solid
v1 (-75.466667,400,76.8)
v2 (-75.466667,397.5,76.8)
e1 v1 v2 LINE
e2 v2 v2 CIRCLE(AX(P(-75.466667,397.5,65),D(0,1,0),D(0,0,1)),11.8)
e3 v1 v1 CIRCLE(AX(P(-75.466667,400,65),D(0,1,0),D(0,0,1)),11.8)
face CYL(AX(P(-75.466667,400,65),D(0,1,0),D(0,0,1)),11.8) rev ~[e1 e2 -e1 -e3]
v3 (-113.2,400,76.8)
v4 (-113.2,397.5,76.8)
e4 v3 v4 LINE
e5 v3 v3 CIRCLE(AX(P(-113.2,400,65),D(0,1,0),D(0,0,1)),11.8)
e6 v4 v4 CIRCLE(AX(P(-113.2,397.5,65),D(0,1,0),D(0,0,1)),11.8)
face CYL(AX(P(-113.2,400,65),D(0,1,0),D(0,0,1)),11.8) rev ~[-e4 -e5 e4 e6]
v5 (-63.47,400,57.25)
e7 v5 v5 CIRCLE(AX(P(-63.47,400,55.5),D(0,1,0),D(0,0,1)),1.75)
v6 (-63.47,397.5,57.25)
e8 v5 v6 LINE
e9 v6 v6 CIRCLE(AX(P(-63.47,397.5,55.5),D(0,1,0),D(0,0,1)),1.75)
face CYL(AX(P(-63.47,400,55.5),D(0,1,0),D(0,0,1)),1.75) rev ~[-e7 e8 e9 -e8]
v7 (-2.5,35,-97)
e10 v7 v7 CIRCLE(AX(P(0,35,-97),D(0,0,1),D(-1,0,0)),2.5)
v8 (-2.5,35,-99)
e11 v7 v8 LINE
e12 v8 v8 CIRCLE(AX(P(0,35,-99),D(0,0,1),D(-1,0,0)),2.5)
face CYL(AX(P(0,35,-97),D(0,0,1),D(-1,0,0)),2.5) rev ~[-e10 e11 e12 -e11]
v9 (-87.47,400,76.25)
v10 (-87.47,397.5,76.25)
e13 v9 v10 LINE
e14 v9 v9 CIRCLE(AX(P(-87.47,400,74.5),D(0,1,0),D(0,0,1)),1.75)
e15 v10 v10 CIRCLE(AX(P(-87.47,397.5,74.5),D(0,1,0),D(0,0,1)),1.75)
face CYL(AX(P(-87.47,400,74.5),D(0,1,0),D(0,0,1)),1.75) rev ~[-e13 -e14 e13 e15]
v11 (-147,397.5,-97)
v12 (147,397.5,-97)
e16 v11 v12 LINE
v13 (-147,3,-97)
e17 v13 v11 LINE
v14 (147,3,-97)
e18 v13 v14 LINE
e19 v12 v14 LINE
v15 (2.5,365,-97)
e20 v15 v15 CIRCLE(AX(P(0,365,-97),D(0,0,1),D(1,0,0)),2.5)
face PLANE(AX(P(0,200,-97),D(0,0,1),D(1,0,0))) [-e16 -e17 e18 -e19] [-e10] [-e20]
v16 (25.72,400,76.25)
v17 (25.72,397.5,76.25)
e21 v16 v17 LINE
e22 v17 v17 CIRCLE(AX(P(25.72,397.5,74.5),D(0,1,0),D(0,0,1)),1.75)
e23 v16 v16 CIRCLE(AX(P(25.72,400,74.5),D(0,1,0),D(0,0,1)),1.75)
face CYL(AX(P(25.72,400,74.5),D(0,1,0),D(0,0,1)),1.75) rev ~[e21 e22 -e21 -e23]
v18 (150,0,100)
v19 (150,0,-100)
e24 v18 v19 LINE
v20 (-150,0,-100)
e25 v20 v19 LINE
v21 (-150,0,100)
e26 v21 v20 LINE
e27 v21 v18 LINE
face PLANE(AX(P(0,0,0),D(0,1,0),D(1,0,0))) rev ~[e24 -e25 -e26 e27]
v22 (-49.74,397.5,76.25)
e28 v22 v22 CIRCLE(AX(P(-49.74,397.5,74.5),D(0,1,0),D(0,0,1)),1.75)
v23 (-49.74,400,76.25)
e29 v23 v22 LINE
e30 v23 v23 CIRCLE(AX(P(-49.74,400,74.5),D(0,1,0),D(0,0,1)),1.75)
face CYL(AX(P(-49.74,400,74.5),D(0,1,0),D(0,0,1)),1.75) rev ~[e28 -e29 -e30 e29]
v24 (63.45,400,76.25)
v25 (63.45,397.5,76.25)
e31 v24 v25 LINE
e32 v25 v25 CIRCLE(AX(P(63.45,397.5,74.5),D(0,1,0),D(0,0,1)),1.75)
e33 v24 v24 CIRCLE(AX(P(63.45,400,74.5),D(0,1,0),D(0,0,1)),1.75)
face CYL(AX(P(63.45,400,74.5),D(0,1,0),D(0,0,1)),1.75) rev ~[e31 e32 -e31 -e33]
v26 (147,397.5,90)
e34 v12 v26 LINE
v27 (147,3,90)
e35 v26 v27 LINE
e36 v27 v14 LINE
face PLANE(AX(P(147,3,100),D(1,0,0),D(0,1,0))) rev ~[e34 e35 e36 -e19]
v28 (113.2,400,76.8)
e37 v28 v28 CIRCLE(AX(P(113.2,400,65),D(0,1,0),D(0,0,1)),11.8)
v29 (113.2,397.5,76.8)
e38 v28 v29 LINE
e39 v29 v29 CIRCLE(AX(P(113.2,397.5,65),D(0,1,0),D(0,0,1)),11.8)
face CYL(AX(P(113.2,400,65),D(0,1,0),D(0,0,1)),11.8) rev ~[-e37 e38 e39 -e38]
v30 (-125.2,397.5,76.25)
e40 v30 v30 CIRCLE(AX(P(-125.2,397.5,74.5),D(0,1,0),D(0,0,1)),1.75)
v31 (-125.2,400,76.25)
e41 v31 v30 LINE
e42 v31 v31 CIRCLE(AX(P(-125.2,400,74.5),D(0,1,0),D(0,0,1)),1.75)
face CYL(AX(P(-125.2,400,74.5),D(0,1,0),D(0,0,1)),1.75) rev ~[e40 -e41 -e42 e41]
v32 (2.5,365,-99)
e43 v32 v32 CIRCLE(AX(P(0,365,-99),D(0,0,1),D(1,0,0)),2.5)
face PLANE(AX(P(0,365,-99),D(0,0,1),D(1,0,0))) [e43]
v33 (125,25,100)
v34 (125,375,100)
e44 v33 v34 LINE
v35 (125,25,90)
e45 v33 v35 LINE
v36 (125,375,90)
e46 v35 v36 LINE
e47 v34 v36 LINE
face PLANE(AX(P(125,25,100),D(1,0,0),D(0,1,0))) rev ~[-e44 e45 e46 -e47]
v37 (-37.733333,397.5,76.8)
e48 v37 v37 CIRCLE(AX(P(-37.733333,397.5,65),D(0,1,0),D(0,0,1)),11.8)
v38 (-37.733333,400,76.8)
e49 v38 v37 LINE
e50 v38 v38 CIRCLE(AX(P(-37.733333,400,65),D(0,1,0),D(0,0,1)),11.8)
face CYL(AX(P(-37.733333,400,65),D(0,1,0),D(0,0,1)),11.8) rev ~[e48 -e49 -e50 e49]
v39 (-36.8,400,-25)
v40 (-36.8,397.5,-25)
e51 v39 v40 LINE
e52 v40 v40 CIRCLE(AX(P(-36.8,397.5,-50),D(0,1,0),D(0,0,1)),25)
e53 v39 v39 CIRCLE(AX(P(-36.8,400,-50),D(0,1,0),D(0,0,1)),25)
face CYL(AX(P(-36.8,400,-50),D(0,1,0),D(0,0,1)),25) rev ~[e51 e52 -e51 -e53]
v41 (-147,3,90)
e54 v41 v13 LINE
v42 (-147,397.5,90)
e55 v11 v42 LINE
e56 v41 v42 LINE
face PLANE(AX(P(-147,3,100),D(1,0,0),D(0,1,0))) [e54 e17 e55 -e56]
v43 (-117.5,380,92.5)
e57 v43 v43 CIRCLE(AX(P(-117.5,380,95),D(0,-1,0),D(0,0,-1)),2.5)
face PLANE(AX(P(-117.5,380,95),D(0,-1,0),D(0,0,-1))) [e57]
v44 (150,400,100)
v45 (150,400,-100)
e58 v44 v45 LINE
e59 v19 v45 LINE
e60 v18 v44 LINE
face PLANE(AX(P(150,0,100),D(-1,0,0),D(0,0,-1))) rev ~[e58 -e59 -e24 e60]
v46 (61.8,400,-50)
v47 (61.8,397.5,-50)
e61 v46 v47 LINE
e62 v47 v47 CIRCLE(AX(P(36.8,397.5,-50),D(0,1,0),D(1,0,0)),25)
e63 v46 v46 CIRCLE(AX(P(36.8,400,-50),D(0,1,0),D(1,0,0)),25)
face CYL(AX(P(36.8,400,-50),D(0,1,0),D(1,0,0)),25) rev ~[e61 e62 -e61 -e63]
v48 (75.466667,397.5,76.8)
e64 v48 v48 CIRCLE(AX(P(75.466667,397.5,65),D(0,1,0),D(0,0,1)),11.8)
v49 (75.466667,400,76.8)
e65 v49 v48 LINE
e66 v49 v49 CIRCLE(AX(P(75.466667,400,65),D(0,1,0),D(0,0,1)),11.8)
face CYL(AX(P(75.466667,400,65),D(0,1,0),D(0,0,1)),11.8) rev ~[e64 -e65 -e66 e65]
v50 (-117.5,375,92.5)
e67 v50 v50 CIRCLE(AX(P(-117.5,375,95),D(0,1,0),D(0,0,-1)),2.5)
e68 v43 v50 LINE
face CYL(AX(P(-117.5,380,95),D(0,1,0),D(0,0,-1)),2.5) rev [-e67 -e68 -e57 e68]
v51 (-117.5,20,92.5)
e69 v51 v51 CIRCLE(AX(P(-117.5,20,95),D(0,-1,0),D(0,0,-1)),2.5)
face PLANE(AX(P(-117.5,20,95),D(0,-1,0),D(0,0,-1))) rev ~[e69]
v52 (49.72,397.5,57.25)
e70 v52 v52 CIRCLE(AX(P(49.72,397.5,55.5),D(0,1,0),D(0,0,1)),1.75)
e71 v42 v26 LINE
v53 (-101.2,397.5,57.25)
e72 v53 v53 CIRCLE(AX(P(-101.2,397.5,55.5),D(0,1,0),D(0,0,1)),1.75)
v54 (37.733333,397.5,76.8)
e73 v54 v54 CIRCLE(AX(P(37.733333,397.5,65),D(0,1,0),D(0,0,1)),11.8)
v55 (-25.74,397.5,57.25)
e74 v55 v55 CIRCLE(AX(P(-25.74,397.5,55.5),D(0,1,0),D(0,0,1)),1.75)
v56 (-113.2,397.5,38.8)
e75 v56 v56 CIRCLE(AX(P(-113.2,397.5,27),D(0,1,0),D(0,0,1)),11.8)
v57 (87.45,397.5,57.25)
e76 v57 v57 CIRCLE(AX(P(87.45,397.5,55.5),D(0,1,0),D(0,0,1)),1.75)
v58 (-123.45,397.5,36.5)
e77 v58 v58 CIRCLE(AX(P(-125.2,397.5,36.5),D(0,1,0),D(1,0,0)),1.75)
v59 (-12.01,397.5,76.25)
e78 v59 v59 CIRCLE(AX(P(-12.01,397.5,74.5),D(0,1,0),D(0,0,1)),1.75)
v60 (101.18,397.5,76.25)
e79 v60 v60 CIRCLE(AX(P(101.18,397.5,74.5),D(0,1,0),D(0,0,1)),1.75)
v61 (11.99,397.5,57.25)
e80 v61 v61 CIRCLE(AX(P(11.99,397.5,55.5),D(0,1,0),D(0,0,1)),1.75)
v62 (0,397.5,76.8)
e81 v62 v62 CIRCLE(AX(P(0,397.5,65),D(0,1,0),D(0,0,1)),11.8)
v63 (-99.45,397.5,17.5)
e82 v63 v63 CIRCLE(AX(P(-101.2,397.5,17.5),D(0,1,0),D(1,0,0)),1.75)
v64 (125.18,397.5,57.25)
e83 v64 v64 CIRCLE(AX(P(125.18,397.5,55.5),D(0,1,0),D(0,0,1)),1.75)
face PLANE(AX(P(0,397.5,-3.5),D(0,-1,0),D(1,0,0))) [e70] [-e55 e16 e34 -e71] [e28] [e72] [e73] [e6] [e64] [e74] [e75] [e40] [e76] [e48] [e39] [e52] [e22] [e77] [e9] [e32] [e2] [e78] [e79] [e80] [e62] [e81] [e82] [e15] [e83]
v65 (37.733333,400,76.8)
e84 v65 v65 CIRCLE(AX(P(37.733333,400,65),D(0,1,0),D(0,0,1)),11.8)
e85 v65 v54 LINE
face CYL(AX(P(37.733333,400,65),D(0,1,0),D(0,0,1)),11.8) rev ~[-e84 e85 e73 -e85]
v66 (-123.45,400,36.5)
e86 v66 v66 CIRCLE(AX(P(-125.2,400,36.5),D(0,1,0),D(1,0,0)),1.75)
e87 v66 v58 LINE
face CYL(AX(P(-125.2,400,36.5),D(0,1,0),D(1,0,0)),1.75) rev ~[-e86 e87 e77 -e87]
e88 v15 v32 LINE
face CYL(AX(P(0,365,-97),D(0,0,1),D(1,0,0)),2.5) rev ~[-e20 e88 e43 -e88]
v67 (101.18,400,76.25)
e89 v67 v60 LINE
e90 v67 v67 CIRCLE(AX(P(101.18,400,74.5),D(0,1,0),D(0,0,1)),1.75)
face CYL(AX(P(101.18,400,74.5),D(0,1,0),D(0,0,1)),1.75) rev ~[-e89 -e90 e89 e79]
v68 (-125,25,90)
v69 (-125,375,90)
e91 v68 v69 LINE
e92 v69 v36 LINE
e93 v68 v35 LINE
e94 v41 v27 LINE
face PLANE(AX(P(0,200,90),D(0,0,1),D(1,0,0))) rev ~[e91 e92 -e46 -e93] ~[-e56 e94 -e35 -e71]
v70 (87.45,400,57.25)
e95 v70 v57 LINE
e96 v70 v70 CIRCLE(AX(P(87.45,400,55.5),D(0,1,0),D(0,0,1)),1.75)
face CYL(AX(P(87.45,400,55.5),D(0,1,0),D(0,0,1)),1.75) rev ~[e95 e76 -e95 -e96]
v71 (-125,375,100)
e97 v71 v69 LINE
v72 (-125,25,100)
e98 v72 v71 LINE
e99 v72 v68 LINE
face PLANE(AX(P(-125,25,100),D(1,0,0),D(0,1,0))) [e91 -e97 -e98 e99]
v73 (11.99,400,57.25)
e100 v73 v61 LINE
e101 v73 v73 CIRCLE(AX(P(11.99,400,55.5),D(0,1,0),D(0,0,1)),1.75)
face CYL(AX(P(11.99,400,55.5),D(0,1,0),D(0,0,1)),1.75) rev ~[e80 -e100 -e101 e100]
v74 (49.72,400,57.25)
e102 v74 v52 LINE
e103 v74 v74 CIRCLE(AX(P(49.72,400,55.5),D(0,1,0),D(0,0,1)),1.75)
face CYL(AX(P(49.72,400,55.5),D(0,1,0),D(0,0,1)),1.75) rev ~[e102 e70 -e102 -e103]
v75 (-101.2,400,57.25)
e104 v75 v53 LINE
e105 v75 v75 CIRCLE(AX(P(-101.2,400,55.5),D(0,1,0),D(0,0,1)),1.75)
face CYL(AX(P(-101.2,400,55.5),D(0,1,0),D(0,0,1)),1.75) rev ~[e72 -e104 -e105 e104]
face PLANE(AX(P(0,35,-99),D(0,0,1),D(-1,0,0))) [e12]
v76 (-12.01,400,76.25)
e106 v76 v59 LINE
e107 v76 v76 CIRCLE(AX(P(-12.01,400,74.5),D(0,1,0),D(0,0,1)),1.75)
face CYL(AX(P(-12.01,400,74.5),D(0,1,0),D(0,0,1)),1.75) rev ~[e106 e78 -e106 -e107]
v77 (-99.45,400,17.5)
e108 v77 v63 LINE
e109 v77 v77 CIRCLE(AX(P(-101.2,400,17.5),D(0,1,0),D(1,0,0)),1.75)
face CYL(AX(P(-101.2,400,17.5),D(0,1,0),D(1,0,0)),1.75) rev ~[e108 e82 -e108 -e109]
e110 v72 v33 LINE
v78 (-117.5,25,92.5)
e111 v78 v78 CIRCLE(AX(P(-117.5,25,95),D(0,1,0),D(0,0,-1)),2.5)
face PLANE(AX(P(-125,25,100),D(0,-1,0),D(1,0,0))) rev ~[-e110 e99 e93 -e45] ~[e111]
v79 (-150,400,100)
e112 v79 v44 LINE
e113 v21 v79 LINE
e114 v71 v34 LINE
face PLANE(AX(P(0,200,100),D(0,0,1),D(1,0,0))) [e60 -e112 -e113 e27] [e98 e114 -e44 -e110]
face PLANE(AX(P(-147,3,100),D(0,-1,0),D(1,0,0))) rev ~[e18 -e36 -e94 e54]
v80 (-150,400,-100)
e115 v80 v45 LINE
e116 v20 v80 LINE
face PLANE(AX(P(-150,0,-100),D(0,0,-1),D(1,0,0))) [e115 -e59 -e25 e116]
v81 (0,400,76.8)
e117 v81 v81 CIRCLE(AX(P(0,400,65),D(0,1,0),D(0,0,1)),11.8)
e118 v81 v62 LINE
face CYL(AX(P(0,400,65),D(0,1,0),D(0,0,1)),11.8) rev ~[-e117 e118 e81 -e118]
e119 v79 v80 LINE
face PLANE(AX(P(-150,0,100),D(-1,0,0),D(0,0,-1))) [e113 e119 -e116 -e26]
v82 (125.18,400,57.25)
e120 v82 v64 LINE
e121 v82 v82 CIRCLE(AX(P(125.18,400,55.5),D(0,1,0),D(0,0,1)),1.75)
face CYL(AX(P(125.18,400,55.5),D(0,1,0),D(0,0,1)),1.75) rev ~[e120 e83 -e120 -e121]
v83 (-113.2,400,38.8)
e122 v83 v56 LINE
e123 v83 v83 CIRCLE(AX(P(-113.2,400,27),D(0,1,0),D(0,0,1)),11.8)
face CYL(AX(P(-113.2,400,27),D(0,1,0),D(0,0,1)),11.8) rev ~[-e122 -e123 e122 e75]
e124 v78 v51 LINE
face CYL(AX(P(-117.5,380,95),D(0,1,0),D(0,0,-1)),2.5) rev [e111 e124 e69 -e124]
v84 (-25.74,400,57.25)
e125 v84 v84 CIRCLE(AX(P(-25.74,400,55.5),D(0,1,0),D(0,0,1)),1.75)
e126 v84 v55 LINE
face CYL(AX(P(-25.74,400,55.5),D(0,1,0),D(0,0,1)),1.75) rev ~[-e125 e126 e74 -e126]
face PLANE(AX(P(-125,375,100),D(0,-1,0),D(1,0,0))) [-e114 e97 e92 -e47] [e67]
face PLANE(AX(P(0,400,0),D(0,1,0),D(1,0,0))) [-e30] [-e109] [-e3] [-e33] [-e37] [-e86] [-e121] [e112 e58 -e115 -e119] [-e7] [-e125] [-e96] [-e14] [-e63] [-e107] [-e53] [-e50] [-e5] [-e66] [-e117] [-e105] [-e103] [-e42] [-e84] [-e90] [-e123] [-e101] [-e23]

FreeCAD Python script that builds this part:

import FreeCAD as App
import Part
import Sketcher
from FreeCAD import Vector
Q = App.Units.Quantity

doc = App.newDocument("Part")
body = doc.addObject("PartDesign::Body", "Body")

sketch1 = body.newObject("Sketcher::SketchObject", "Sketch")
sketch1.AttachmentSupport = (doc.getObject("XZ_Plane"), [""])
sketch1.MapMode = "FlatFace"
sketch1.addGeometry([
    Part.LineSegment(Vector(-150, -100, 0), Vector(-150, 100, 0)),
    Part.LineSegment(Vector(-150, 100, 0), Vector(150, 100, 0)),
    Part.LineSegment(Vector(150, 100, 0), Vector(150, -100, 0)),
    Part.LineSegment(Vector(150, -100, 0), Vector(-150, -100, 0)),
], False)
sketch1.addConstraint([
    Sketcher.Constraint("Coincident", 0, 2, 1, 1),
    Sketcher.Constraint("Coincident", 1, 2, 2, 1),
    Sketcher.Constraint("Coincident", 2, 2, 3, 1),
    Sketcher.Constraint("Coincident", 3, 2, 0, 1),
    Sketcher.Constraint("Vertical", 0),
    Sketcher.Constraint("Horizontal", 1),
    Sketcher.Constraint("Vertical", 2),
    Sketcher.Constraint("Horizontal", 3),
    Sketcher.Constraint("Symmetric", 0, 2, 2, 2, -1, 1),
    Sketcher.Constraint("DistanceX", 1, 1, 1, 2, Q("300 mm")),
    Sketcher.Constraint("DistanceY", 0, 1, 0, 2, Q("200 mm")),
])
pad1 = body.newObject("PartDesign::Pad", "Pad")
pad1.Profile = sketch1
pad1.Length = 400
pad1.Reversed = True

sketch2 = body.newObject("Sketcher::SketchObject", "Sketch001")
sketch2.AttachmentSupport = (doc.getObject("XY_Plane"), [""])
sketch2.MapMode = "FlatFace"
sketch2.AttachmentOffset = App.Placement(Vector(0, 0, 100), App.Rotation())
sketch2.addGeometry([
    Part.LineSegment(Vector(-147, 397, 0), Vector(-147, 3, 0)),
    Part.LineSegment(Vector(-147, 3, 0), Vector(147, 3, 0)),
    Part.LineSegment(Vector(147, 3, 0), Vector(147, 397, 0)),
    Part.LineSegment(Vector(147, 397, 0), Vector(-147, 397, 0)),
], False)
sketch2.addConstraint([
    Sketcher.Constraint("Coincident", 0, 2, 1, 1),
    Sketcher.Constraint("Coincident", 1, 2, 2, 1),
    Sketcher.Constraint("Coincident", 2, 2, 3, 1),
    Sketcher.Constraint("Coincident", 3, 2, 0, 1),
    Sketcher.Constraint("Vertical", 0),
    Sketcher.Constraint("Horizontal", 1),
    Sketcher.Constraint("Vertical", 2),
    Sketcher.Constraint("Horizontal", 3),
    Sketcher.Constraint("DistanceX", 1, 1, 1, 2, Q("294 mm")),
    Sketcher.Constraint("DistanceY", 0, 2, 0, 1, Q("394 mm")),
    Sketcher.Constraint("DistanceX", 0, 2, -1, 1, Q("147 mm")),
    Sketcher.Constraint("DistanceY", -1, 1, 0, 2, Q("3 mm")),
])
pocket1 = body.newObject("PartDesign::Pocket", "Pocket")
pocket1.Profile = sketch2
pocket1.Length = 197

sketch3 = body.newObject("Sketcher::SketchObject", "Sketch002")
sketch3.AttachmentSupport = (doc.getObject("XY_Plane"), [""])
sketch3.MapMode = "FlatFace"
sketch3.AttachmentOffset = App.Placement(Vector(0, 0, 100), App.Rotation())
sketch3.addGeometry([
    Part.LineSegment(Vector(-147, 397, 0), Vector(-147, 3, 0)),
    Part.LineSegment(Vector(-147, 3, 0), Vector(147, 3, 0)),
    Part.LineSegment(Vector(147, 3, 0), Vector(147, 397, 0)),
    Part.LineSegment(Vector(147, 397, 0), Vector(-147, 397, 0)),
    Part.LineSegment(Vector(125, 25, 0), Vector(-125, 25, 0)),
    Part.LineSegment(Vector(-125, 25, 0), Vector(-125, 375, 0)),
    Part.LineSegment(Vector(-125, 375, 0), Vector(125, 375, 0)),
    Part.LineSegment(Vector(125, 375, 0), Vector(125, 25, 0)),
], False)
sketch3.addConstraint([
    Sketcher.Constraint("Coincident", 0, 2, 1, 1),
    Sketcher.Constraint("Coincident", 1, 2, 2, 1),
    Sketcher.Constraint("Coincident", 2, 2, 3, 1),
    Sketcher.Constraint("Coincident", 3, 2, 0, 1),
    Sketcher.Constraint("Coincident", 4, 2, 5, 1),
    Sketcher.Constraint("Coincident", 5, 2, 6, 1),
    Sketcher.Constraint("Coincident", 6, 2, 7, 1),
    Sketcher.Constraint("Coincident", 7, 2, 4, 1),
    Sketcher.Constraint("Vertical", 0),
    Sketcher.Constraint("Horizontal", 1),
    Sketcher.Constraint("Vertical", 2),
    Sketcher.Constraint("Horizontal", 3),
    Sketcher.Constraint("Horizontal", 4),
    Sketcher.Constraint("Vertical", 5),
    Sketcher.Constraint("Horizontal", 6),
    Sketcher.Constraint("Vertical", 7),
    Sketcher.Constraint("DistanceX", 1, 1, 1, 2, Q("294 mm")),
    Sketcher.Constraint("DistanceX", 4, 2, 4, 1, Q("250 mm")),
    Sketcher.Constraint("DistanceY", 0, 2, 0, 1, Q("394 mm")),
    Sketcher.Constraint("DistanceY", 5, 1, 5, 2, Q("350 mm")),
    Sketcher.Constraint("DistanceX", 0, 2, -1, 1, Q("147 mm")),
    Sketcher.Constraint("DistanceY", -1, 1, 0, 2, Q("3 mm")),
    Sketcher.Constraint("DistanceX", 4, 2, -1, 1, Q("125 mm")),
    Sketcher.Constraint("DistanceY", -1, 1, 4, 2, Q("25 mm")),
])
pad2 = body.newObject("PartDesign::Pad", "Pad001")
pad2.Profile = sketch3
pad2.Length = 10
pad2.Reversed = True

sketch4 = body.newObject("Sketcher::SketchObject", "Sketch003")
sketch4.AttachmentSupport = (doc.getObject("XY_Plane"), [""])
sketch4.MapMode = "FlatFace"
sketch4.AttachmentOffset = App.Placement(Vector(0, 0, -97), App.Rotation())
sketch4.addGeometry([
    Part.Circle(Vector(0, 365, 0), Vector(0, 0, 1), 2.5),
    Part.Circle(Vector(0, 35, 0), Vector(0, 0, 1), 2.5),
], False)
sketch4.addConstraint([
    Sketcher.Constraint("Equal", 0, 1),
    Sketcher.Constraint("PointOnObject", 0, 3, -2),
    Sketcher.Constraint("PointOnObject", 1, 3, -2),
    Sketcher.Constraint("Diameter", 0, Q("5 mm")),
    Sketcher.Constraint("DistanceY", -1, 1, 0, 3, Q("365 mm")),
    Sketcher.Constraint("DistanceY", -1, 1, 1, 3, Q("35 mm")),
])
pocket2 = body.newObject("PartDesign::Pocket", "Pocket001")
pocket2.Profile = sketch4
pocket2.Length = 2

sketch5 = body.newObject("Sketcher::SketchObject", "Sketch004")
sketch5.AttachmentSupport = (doc.getObject("XZ_Plane"), [""])
sketch5.MapMode = "FlatFace"
sketch5.AttachmentOffset = App.Placement(Vector(0, 0, -397), App.Rotation())
sketch5.addGeometry([
    Part.LineSegment(Vector(-147, 90, 0), Vector(-147, -97, 0)),
    Part.LineSegment(Vector(-147, -97, 0), Vector(147, -97, 0)),
    Part.LineSegment(Vector(147, -97, 0), Vector(147, 90, 0)),
    Part.LineSegment(Vector(147, 90, 0), Vector(-147, 90, 0)),
], False)
sketch5.addConstraint([
    Sketcher.Constraint("Coincident", 0, 2, 1, 1),
    Sketcher.Constraint("Coincident", 1, 2, 2, 1),
    Sketcher.Constraint("Coincident", 2, 2, 3, 1),
    Sketcher.Constraint("Coincident", 3, 2, 0, 1),
    Sketcher.Constraint("Vertical", 0),
    Sketcher.Constraint("Horizontal", 1),
    Sketcher.Constraint("Vertical", 2),
    Sketcher.Constraint("Horizontal", 3),
    Sketcher.Constraint("DistanceX", 1, 1, 1, 2, Q("294 mm")),
    Sketcher.Constraint("DistanceY", 0, 2, 0, 1, Q("187 mm")),
    Sketcher.Constraint("DistanceX", 0, 2, -1, 1, Q("147 mm")),
    Sketcher.Constraint("DistanceY", 0, 2, -1, 1, Q("97 mm")),
])
pocket3 = body.newObject("PartDesign::Pocket", "Pocket002")
pocket3.Profile = sketch5
pocket3.Length = 0.5

sketch6 = body.newObject("Sketcher::SketchObject", "Sketch005")
sketch6.AttachmentSupport = (doc.getObject("XZ_Plane"), [""])
sketch6.MapMode = "FlatFace"
sketch6.AttachmentOffset = App.Placement(Vector(0, 0, -400), App.Rotation())
sketch6.addGeometry(Part.Circle(Vector(-113, 65, 0), Vector(0, 0, 1), 12), False)
sketch6.addConstraint([
    Sketcher.Constraint("Diameter", 0, Q("23.6 mm")),
    Sketcher.Constraint("DistanceY", -1, 1, 0, 3, Q("65 mm")),
    Sketcher.Constraint("DistanceX", 0, 3, -1, 1, Q("113.2 mm")),
])
pocket4 = body.newObject("PartDesign::Pocket", "Pocket003")
pocket4.Profile = sketch6
pocket4.Type = "UpToFirst"
pocket4.Reversed = True

sketch7 = body.newObject("Sketcher::SketchObject", "Sketch006")
sketch7.AttachmentSupport = (doc.getObject("XZ_Plane"), [""])
sketch7.MapMode = "FlatFace"
sketch7.AttachmentOffset = App.Placement(Vector(0, 0, -400), App.Rotation())
sketch7.addGeometry(Part.Circle(Vector(-75, 65, 0), Vector(0, 0, 1), 12), False)
sketch7.addConstraint([
    Sketcher.Constraint("Diameter", 0, Q("23.6 mm")),
    Sketcher.Constraint("DistanceY", -1, 1, 0, 3, Q("65 mm")),
    Sketcher.Constraint("DistanceX", 0, 3, -1, 1, Q("75.466667 mm")),
])
pocket5 = body.newObject("PartDesign::Pocket", "Pocket004")
pocket5.Profile = sketch7
pocket5.Type = "UpToFirst"
pocket5.Reversed = True

sketch8 = body.newObject("Sketcher::SketchObject", "Sketch007")
sketch8.AttachmentSupport = (doc.getObject("XZ_Plane"), [""])
sketch8.MapMode = "FlatFace"
sketch8.AttachmentOffset = App.Placement(Vector(0, 0, -400), App.Rotation())
sketch8.addGeometry(Part.Circle(Vector(-38, 65, 0), Vector(0, 0, 1), 12), False)
sketch8.addConstraint([
    Sketcher.Constraint("Diameter", 0, Q("23.6 mm")),
    Sketcher.Constraint("DistanceY", -1, 1, 0, 3, Q("65 mm")),
    Sketcher.Constraint("DistanceX", 0, 3, -1, 1, Q("37.733333 mm")),
])
pocket6 = body.newObject("PartDesign::Pocket", "Pocket005")
pocket6.Profile = sketch8
pocket6.Type = "UpToFirst"
pocket6.Reversed = True

sketch9 = body.newObject("Sketcher::SketchObject", "Sketch008")
sketch9.AttachmentSupport = (doc.getObject("XZ_Plane"), [""])
sketch9.MapMode = "FlatFace"
sketch9.AttachmentOffset = App.Placement(Vector(0, 0, -400), App.Rotation())
sketch9.addGeometry(Part.Circle(Vector(0, 65, 0), Vector(0, 0, 1), 12), False)
sketch9.addConstraint([
    Sketcher.Constraint("PointOnObject", 0, 3, -2),
    Sketcher.Constraint("Diameter", 0, Q("23.6 mm")),
    Sketcher.Constraint("DistanceY", -1, 1, 0, 3, Q("65 mm")),
])
pocket7 = body.newObject("PartDesign::Pocket", "Pocket006")
pocket7.Profile = sketch9
pocket7.Type = "UpToFirst"
pocket7.Reversed = True

sketch10 = body.newObject("Sketcher::SketchObject", "Sketch009")
sketch10.AttachmentSupport = (doc.getObject("XZ_Plane"), [""])
sketch10.MapMode = "FlatFace"
sketch10.AttachmentOffset = App.Placement(Vector(0, 0, -400), App.Rotation())
sketch10.addGeometry(Part.Circle(Vector(38, 65, 0), Vector(0, 0, 1), 12), False)
sketch10.addConstraint([
    Sketcher.Constraint("Diameter", 0, Q("23.6 mm")),
    Sketcher.Constraint("DistanceY", -1, 1, 0, 3, Q("65 mm")),
    Sketcher.Constraint("DistanceX", -1, 1, 0, 3, Q("37.733333 mm")),
])
pocket8 = body.newObject("PartDesign::Pocket", "Pocket007")
pocket8.Profile = sketch10
pocket8.Type = "UpToFirst"
pocket8.Reversed = True

sketch11 = body.newObject("Sketcher::SketchObject", "Sketch010")
sketch11.AttachmentSupport = (doc.getObject("XZ_Plane"), [""])
sketch11.MapMode = "FlatFace"
sketch11.AttachmentOffset = App.Placement(Vector(0, 0, -400), App.Rotation())
sketch11.addGeometry(Part.Circle(Vector(75, 65, 0), Vector(0, 0, 1), 12), False)
sketch11.addConstraint([
    Sketcher.Constraint("Diameter", 0, Q("23.6 mm")),
    Sketcher.Constraint("DistanceY", -1, 1, 0, 3, Q("65 mm")),
    Sketcher.Constraint("DistanceX", -1, 1, 0, 3, Q("75.466667 mm")),
])
pocket9 = body.newObject("PartDesign::Pocket", "Pocket008")
pocket9.Profile = sketch11
pocket9.Type = "UpToFirst"
pocket9.Reversed = True

sketch12 = body.newObject("Sketcher::SketchObject", "Sketch011")
sketch12.AttachmentSupport = (doc.getObject("XZ_Plane"), [""])
sketch12.MapMode = "FlatFace"
sketch12.AttachmentOffset = App.Placement(Vector(0, 0, -400), App.Rotation())
sketch12.addGeometry(Part.Circle(Vector(113, 65, 0), Vector(0, 0, 1), 12), False)
sketch12.addConstraint([
    Sketcher.Constraint("Diameter", 0, Q("23.6 mm")),
    Sketcher.Constraint("DistanceY", -1, 1, 0, 3, Q("65 mm")),
    Sketcher.Constraint("DistanceX", -1, 1, 0, 3, Q("113.2 mm")),
])
pocket10 = body.newObject("PartDesign::Pocket", "Pocket009")
pocket10.Profile = sketch12
pocket10.Type = "UpToFirst"
pocket10.Reversed = True

sketch13 = body.newObject("Sketcher::SketchObject", "Sketch012")
sketch13.AttachmentSupport = (doc.getObject("XZ_Plane"), [""])
sketch13.MapMode = "FlatFace"
sketch13.AttachmentOffset = App.Placement(Vector(0, 0, -400), App.Rotation())
sketch13.addGeometry(Part.Circle(Vector(-113, 27, 0), Vector(0, 0, 1), 12), False)
sketch13.addConstraint([
    Sketcher.Constraint("Diameter", 0, Q("23.6 mm")),
    Sketcher.Constraint("DistanceY", -1, 1, 0, 3, Q("27 mm")),
    Sketcher.Constraint("DistanceX", 0, 3, -1, 1, Q("113.2 mm")),
])
pocket11 = body.newObject("PartDesign::Pocket", "Pocket010")
pocket11.Profile = sketch13
pocket11.Type = "UpToFirst"
pocket11.Reversed = True

sketch14 = body.newObject("Sketcher::SketchObject", "Sketch013")
sketch14.AttachmentSupport = (doc.getObject("XZ_Plane"), [""])
sketch14.MapMode = "FlatFace"
sketch14.AttachmentOffset = App.Placement(Vector(0, 0, -400), App.Rotation())
sketch14.addGeometry(Part.Circle(Vector(-37, -50, 0), Vector(0, 0, 1), 25), False)
sketch14.addConstraint([
    Sketcher.Constraint("Diameter", 0, Q("50 mm")),
    Sketcher.Constraint("DistanceY", 0, 3, -1, 1, Q("50 mm")),
    Sketcher.Constraint("DistanceX", 0, 3, -1, 1, Q("36.8 mm")),
])
pocket12 = body.newObject("PartDesign::Pocket", "Pocket011")
pocket12.Profile = sketch14
pocket12.Type = "UpToFirst"
pocket12.Reversed = True

sketch15 = body.newObject("Sketcher::SketchObject", "Sketch014")
sketch15.AttachmentSupport = (doc.getObject("XZ_Plane"), [""])
sketch15.MapMode = "FlatFace"
sketch15.AttachmentOffset = App.Placement(Vector(0, 0, -400), App.Rotation())
sketch15.addGeometry(Part.Circle(Vector(37, -50, 0), Vector(0, 0, 1), 25), False)
sketch15.addConstraint([
    Sketcher.Constraint("Diameter", 0, Q("50 mm")),
    Sketcher.Constraint("DistanceY", 0, 3, -1, 1, Q("50 mm")),
    Sketcher.Constraint("DistanceX", -1, 1, 0, 3, Q("36.8 mm")),
])
pocket13 = body.newObject("PartDesign::Pocket", "Pocket012")
pocket13.Profile = sketch15
pocket13.Type = "UpToFirst"
pocket13.Reversed = True

sketch16 = body.newObject("Sketcher::SketchObject", "Sketch015")
sketch16.AttachmentSupport = (doc.getObject("XZ_Plane"), [""])
sketch16.MapMode = "FlatFace"
sketch16.AttachmentOffset = App.Placement(Vector(0, 0, -400), App.Rotation())
sketch16.addGeometry(Part.Circle(Vector(-125.2, 74.5, 0), Vector(0, 0, 1), 1.8), False)
sketch16.addConstraint([
    Sketcher.Constraint("Diameter", 0, Q("3.5 mm")),
    Sketcher.Constraint("DistanceX", 0, 3, -1, 1, Q("125.2 mm")),
    Sketcher.Constraint("DistanceY", -1, 1, 0, 3, Q("74.5 mm")),
])
pocket14 = body.newObject("PartDesign::Pocket", "Pocket013")
pocket14.Profile = sketch16
pocket14.Type = "UpToFirst"
pocket14.Reversed = True

sketch17 = body.newObject("Sketcher::SketchObject", "Sketch016")
sketch17.AttachmentSupport = (doc.getObject("XZ_Plane"), [""])
sketch17.MapMode = "FlatFace"
sketch17.AttachmentOffset = App.Placement(Vector(0, 0, -400), App.Rotation())
sketch17.addGeometry(Part.Circle(Vector(-87.5, 74.5, 0), Vector(0, 0, 1), 1.8), False)
sketch17.addConstraint([
    Sketcher.Constraint("Diameter", 0, Q("3.5 mm")),
    Sketcher.Constraint("DistanceY", -1, 1, 0, 3, Q("74.5 mm")),
    Sketcher.Constraint("DistanceX", 0, 3, -1, 1, Q("87.47 mm")),
])
pocket15 = body.newObject("PartDesign::Pocket", "Pocket014")
pocket15.Profile = sketch17
pocket15.Type = "UpToFirst"
pocket15.Reversed = True

sketch18 = body.newObject("Sketcher::SketchObject", "Sketch017")
sketch18.AttachmentSupport = (doc.getObject("XZ_Plane"), [""])
sketch18.MapMode = "FlatFace"
sketch18.AttachmentOffset = App.Placement(Vector(0, 0, -400), App.Rotation())
sketch18.addGeometry(Part.Circle(Vector(-49.7, 74.5, 0), Vector(0, 0, 1), 1.8), False)
sketch18.addConstraint([
    Sketcher.Constraint("Diameter", 0, Q("3.5 mm")),
    Sketcher.Constraint("DistanceY", -1, 1, 0, 3, Q("74.5 mm")),
    Sketcher.Constraint("DistanceX", 0, 3, -1, 1, Q("49.74 mm")),
])
pocket16 = body.newObject("PartDesign::Pocket", "Pocket015")
pocket16.Profile = sketch18
pocket16.Type = "UpToFirst"
pocket16.Reversed = True

sketch19 = body.newObject("Sketcher::SketchObject", "Sketch018")
sketch19.AttachmentSupport = (doc.getObject("XZ_Plane"), [""])
sketch19.MapMode = "FlatFace"
sketch19.AttachmentOffset = App.Placement(Vector(0, 0, -400), App.Rotation())
sketch19.addGeometry(Part.Circle(Vector(-12, 74.5, 0), Vector(0, 0, 1), 1.8), False)
sketch19.addConstraint([
    Sketcher.Constraint("Diameter", 0, Q("3.5 mm")),
    Sketcher.Constraint("DistanceY", -1, 1, 0, 3, Q("74.5 mm")),
    Sketcher.Constraint("DistanceX", 0, 3, -1, 1, Q("12.01 mm")),
])
pocket17 = body.newObject("PartDesign::Pocket", "Pocket016")
pocket17.Profile = sketch19
pocket17.Type = "UpToFirst"
pocket17.Reversed = True

sketch20 = body.newObject("Sketcher::SketchObject", "Sketch019")
sketch20.AttachmentSupport = (doc.getObject("XZ_Plane"), [""])
sketch20.MapMode = "FlatFace"
sketch20.AttachmentOffset = App.Placement(Vector(0, 0, -400), App.Rotation())
sketch20.addGeometry(Part.Circle(Vector(25.7, 74.5, 0), Vector(0, 0, 1), 1.8), False)
sketch20.addConstraint([
    Sketcher.Constraint("Diameter", 0, Q("3.5 mm")),
    Sketcher.Constraint("DistanceY", -1, 1, 0, 3, Q("74.5 mm")),
    Sketcher.Constraint("DistanceX", -1, 1, 0, 3, Q("25.72 mm")),
])
pocket18 = body.newObject("PartDesign::Pocket", "Pocket017")
pocket18.Profile = sketch20
pocket18.Type = "UpToFirst"
pocket18.Reversed = True

sketch21 = body.newObject("Sketcher::SketchObject", "Sketch020")
sketch21.AttachmentSupport = (doc.getObject("XZ_Plane"), [""])
sketch21.MapMode = "FlatFace"
sketch21.AttachmentOffset = App.Placement(Vector(0, 0, -400), App.Rotation())
sketch21.addGeometry(Part.Circle(Vector(63.5, 74.5, 0), Vector(0, 0, 1), 1.8), False)
sketch21.addConstraint([
    Sketcher.Constraint("Diameter", 0, Q("3.5 mm")),
    Sketcher.Constraint("DistanceY", -1, 1, 0, 3, Q("74.5 mm")),
    Sketcher.Constraint("DistanceX", -1, 1, 0, 3, Q("63.45 mm")),
])
pocket19 = body.newObject("PartDesign::Pocket", "Pocket018")
pocket19.Profile = sketch21
pocket19.Type = "UpToFirst"
pocket19.Reversed = True

sketch22 = body.newObject("Sketcher::SketchObject", "Sketch021")
sketch22.AttachmentSupport = (doc.getObject("XZ_Plane"), [""])
sketch22.MapMode = "FlatFace"
sketch22.AttachmentOffset = App.Placement(Vector(0, 0, -400), App.Rotation())
sketch22.addGeometry(Part.Circle(Vector(101.2, 74.5, 0), Vector(0, 0, 1), 1.8), False)
sketch22.addConstraint([
    Sketcher.Constraint("Diameter", 0, Q("3.5 mm")),
    Sketcher.Constraint("DistanceY", -1, 1, 0, 3, Q("74.5 mm")),
    Sketcher.Constraint("DistanceX", -1, 1, 0, 3, Q("101.18 mm")),
])
pocket20 = body.newObject("PartDesign::Pocket", "Pocket019")
pocket20.Profile = sketch22
pocket20.Type = "UpToFirst"
pocket20.Reversed = True

sketch23 = body.newObject("Sketcher::SketchObject", "Sketch022")
sketch23.AttachmentSupport = (doc.getObject("XZ_Plane"), [""])
sketch23.MapMode = "FlatFace"
sketch23.AttachmentOffset = App.Placement(Vector(0, 0, -400), App.Rotation())
sketch23.addGeometry(Part.Circle(Vector(-101.2, 55.5, 0), Vector(0, 0, 1), 1.8), False)
sketch23.addConstraint([
    Sketcher.Constraint("Diameter", 0, Q("3.5 mm")),
    Sketcher.Constraint("DistanceX", 0, 3, -1, 1, Q("101.2 mm")),
    Sketcher.Constraint("DistanceY", -1, 1, 0, 3, Q("55.5 mm")),
])
pocket21 = body.newObject("PartDesign::Pocket", "Pocket020")
pocket21.Profile = sketch23
pocket21.Type = "UpToFirst"
pocket21.Reversed = True

sketch24 = body.newObject("Sketcher::SketchObject", "Sketch023")
sketch24.AttachmentSupport = (doc.getObject("XZ_Plane"), [""])
sketch24.MapMode = "FlatFace"
sketch24.AttachmentOffset = App.Placement(Vector(0, 0, -400), App.Rotation())
sketch24.addGeometry(Part.Circle(Vector(-63.5, 55.5, 0), Vector(0, 0, 1), 1.8), False)
sketch24.addConstraint([
    Sketcher.Constraint("Diameter", 0, Q("3.5 mm")),
    Sketcher.Constraint("DistanceY", -1, 1, 0, 3, Q("55.5 mm")),
    Sketcher.Constraint("DistanceX", 0, 3, -1, 1, Q("63.47 mm")),
])
pocket22 = body.newObject("PartDesign::Pocket", "Pocket021")
pocket22.Profile = sketch24
pocket22.Type = "UpToFirst"
pocket22.Reversed = True

sketch25 = body.newObject("Sketcher::SketchObject", "Sketch024")
sketch25.AttachmentSupport = (doc.getObject("XZ_Plane"), [""])
sketch25.MapMode = "FlatFace"
sketch25.AttachmentOffset = App.Placement(Vector(0, 0, -400), App.Rotation())
sketch25.addGeometry(Part.Circle(Vector(-25.7, 55.5, 0), Vector(0, 0, 1), 1.8), False)
sketch25.addConstraint([
    Sketcher.Constraint("Diameter", 0, Q("3.5 mm")),
    Sketcher.Constraint("DistanceY", -1, 1, 0, 3, Q("55.5 mm")),
    Sketcher.Constraint("DistanceX", 0, 3, -1, 1, Q("25.74 mm")),
])
pocket23 = body.newObject("PartDesign::Pocket", "Pocket022")
pocket23.Profile = sketch25
pocket23.Type = "UpToFirst"
pocket23.Reversed = True

sketch26 = body.newObject("Sketcher::SketchObject", "Sketch025")
sketch26.AttachmentSupport = (doc.getObject("XZ_Plane"), [""])
sketch26.MapMode = "FlatFace"
sketch26.AttachmentOffset = App.Placement(Vector(0, 0, -400), App.Rotation())
sketch26.addGeometry(Part.Circle(Vector(12, 55.5, 0), Vector(0, 0, 1), 1.8), False)
sketch26.addConstraint([
    Sketcher.Constraint("Diameter", 0, Q("3.5 mm")),
    Sketcher.Constraint("DistanceY", -1, 1, 0, 3, Q("55.5 mm")),
    Sketcher.Constraint("DistanceX", -1, 1, 0, 3, Q("11.99 mm")),
])
pocket24 = body.newObject("PartDesign::Pocket", "Pocket023")
pocket24.Profile = sketch26
pocket24.Type = "UpToFirst"
pocket24.Reversed = True

sketch27 = body.newObject("Sketcher::SketchObject", "Sketch026")
sketch27.AttachmentSupport = (doc.getObject("XZ_Plane"), [""])
sketch27.MapMode = "FlatFace"
sketch27.AttachmentOffset = App.Placement(Vector(0, 0, -400), App.Rotation())
sketch27.addGeometry(Part.Circle(Vector(49.7, 55.5, 0), Vector(0, 0, 1), 1.8), False)
sketch27.addConstraint([
    Sketcher.Constraint("Diameter", 0, Q("3.5 mm")),
    Sketcher.Constraint("DistanceY", -1, 1, 0, 3, Q("55.5 mm")),
    Sketcher.Constraint("DistanceX", -1, 1, 0, 3, Q("49.72 mm")),
])
pocket25 = body.newObject("PartDesign::Pocket", "Pocket024")
pocket25.Profile = sketch27
pocket25.Type = "UpToFirst"
pocket25.Reversed = True

sketch28 = body.newObject("Sketcher::SketchObject", "Sketch027")
sketch28.AttachmentSupport = (doc.getObject("XZ_Plane"), [""])
sketch28.MapMode = "FlatFace"
sketch28.AttachmentOffset = App.Placement(Vector(0, 0, -400), App.Rotation())
sketch28.addGeometry(Part.Circle(Vector(87.5, 55.5, 0), Vector(0, 0, 1), 1.8), False)
sketch28.addConstraint([
    Sketcher.Constraint("Diameter", 0, Q("3.5 mm")),
    Sketcher.Constraint("DistanceY", -1, 1, 0, 3, Q("55.5 mm")),
    Sketcher.Constraint("DistanceX", -1, 1, 0, 3, Q("87.45 mm")),
])
pocket26 = body.newObject("PartDesign::Pocket", "Pocket025")
pocket26.Profile = sketch28
pocket26.Type = "UpToFirst"
pocket26.Reversed = True

sketch29 = body.newObject("Sketcher::SketchObject", "Sketch028")
sketch29.AttachmentSupport = (doc.getObject("XZ_Plane"), [""])
sketch29.MapMode = "FlatFace"
sketch29.AttachmentOffset = App.Placement(Vector(0, 0, -400), App.Rotation())
sketch29.addGeometry(Part.Circle(Vector(125.2, 55.5, 0), Vector(0, 0, 1), 1.8), False)
sketch29.addConstraint([
    Sketcher.Constraint("Diameter", 0, Q("3.5 mm")),
    Sketcher.Constraint("DistanceY", -1, 1, 0, 3, Q("55.5 mm")),
    Sketcher.Constraint("DistanceX", -1, 1, 0, 3, Q("125.18 mm")),
])
pocket27 = body.newObject("PartDesign::Pocket", "Pocket026")
pocket27.Profile = sketch29
pocket27.Type = "UpToFirst"
pocket27.Reversed = True

sketch30 = body.newObject("Sketcher::SketchObject", "Sketch029")
sketch30.AttachmentSupport = (doc.getObject("XZ_Plane"), [""])
sketch30.MapMode = "FlatFace"
sketch30.AttachmentOffset = App.Placement(Vector(0, 0, -400), App.Rotation())
sketch30.addGeometry(Part.Circle(Vector(-125.2, 36.5, 0), Vector(0, 0, 1), 1.8), False)
sketch30.addConstraint([
    Sketcher.Constraint("Diameter", 0, Q("3.5 mm")),
    Sketcher.Constraint("DistanceX", 0, 3, -1, 1, Q("125.2 mm")),
    Sketcher.Constraint("DistanceY", -1, 1, 0, 3, Q("36.5 mm")),
])
pocket28 = body.newObject("PartDesign::Pocket", "Pocket027")
pocket28.Profile = sketch30
pocket28.Type = "UpToFirst"
pocket28.Reversed = True

sketch31 = body.newObject("Sketcher::SketchObject", "Sketch030")
sketch31.AttachmentSupport = (doc.getObject("XZ_Plane"), [""])
sketch31.MapMode = "FlatFace"
sketch31.AttachmentOffset = App.Placement(Vector(0, 0, -400), App.Rotation())
sketch31.addGeometry(Part.Circle(Vector(-101.2, 17.5, 0), Vector(0, 0, 1), 1.8), False)
sketch31.addConstraint([
    Sketcher.Constraint("Diameter", 0, Q("3.5 mm")),
    Sketcher.Constraint("DistanceX", 0, 3, -1, 1, Q("101.2 mm")),
    Sketcher.Constraint("DistanceY", -1, 1, 0, 3, Q("17.5 mm")),
])
pocket29 = body.newObject("PartDesign::Pocket", "Pocket028")
pocket29.Profile = sketch31
pocket29.Type = "UpToFirst"
pocket29.Reversed = True

sketch32 = body.newObject("Sketcher::SketchObject", "Sketch031")
sketch32.AttachmentSupport = (doc.getObject("XZ_Plane"), [""])
sketch32.MapMode = "FlatFace"
sketch32.AttachmentOffset = App.Placement(Vector(0, 0, -375), App.Rotation())
sketch32.addGeometry(Part.Circle(Vector(-117.5, 95, 0), Vector(0, 0, 1), 2.5), False)
sketch32.addConstraint([
    Sketcher.Constraint("Diameter", 0, Q("5 mm")),
    Sketcher.Constraint("DistanceY", -1, 1, 0, 3, Q("95 mm")),
    Sketcher.Constraint("DistanceX", 0, 3, -1, 1, Q("117.5 mm")),
])
pocket30 = body.newObject("PartDesign::Pocket", "Pocket029")
pocket30.Profile = sketch32
pocket30.Type = "TwoLengths"
pocket30.Length = 355
pocket30.Length2 = 5
pocket30.Reversed = True

doc.recompute()
